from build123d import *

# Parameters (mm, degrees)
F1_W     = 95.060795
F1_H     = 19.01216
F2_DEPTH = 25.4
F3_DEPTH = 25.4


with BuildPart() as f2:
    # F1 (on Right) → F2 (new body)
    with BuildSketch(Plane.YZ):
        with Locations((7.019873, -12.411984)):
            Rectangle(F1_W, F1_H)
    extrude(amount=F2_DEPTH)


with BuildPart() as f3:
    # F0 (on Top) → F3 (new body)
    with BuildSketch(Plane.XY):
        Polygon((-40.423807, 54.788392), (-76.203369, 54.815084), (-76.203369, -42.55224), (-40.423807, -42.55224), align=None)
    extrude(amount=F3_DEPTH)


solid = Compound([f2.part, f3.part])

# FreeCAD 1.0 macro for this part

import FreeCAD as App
import Part
import Sketcher

V = App.Vector
Q = App.Units.Quantity

doc = App.newDocument("Part")
body = doc.addObject("PartDesign::Body", "Body")

sketch1 = body.newObject("Sketcher::SketchObject", "Sketch")
sketch1.AttachmentSupport = (doc.getObject("YZ_Plane"), [""])
sketch1.MapMode = "FlatFace"
sketch1.addGeometry(Part.LineSegment(V(-41, -3, 0), V(-41, -22, 0)), False)
sketch1.addGeometry(Part.LineSegment(V(-41, -22, 0), V(55, -22, 0)), False)
sketch1.addGeometry(Part.LineSegment(V(55, -22, 0), V(55, -3, 0)), False)
sketch1.addGeometry(Part.LineSegment(V(55, -3, 0), V(-41, -3, 0)), False)
sketch1.addConstraint(Sketcher.Constraint("Coincident", 0, 2, 1, 1))
sketch1.addConstraint(Sketcher.Constraint("Coincident", 1, 2, 2, 1))
sketch1.addConstraint(Sketcher.Constraint("Coincident", 2, 2, 3, 1))
sketch1.addConstraint(Sketcher.Constraint("Coincident", 3, 2, 0, 1))
sketch1.addConstraint(Sketcher.Constraint("Vertical", 0))
sketch1.addConstraint(Sketcher.Constraint("Horizontal", 1))
sketch1.addConstraint(Sketcher.Constraint("Vertical", 2))
sketch1.addConstraint(Sketcher.Constraint("Horizontal", 3))
sketch1.addConstraint(Sketcher.Constraint("DistanceY", 0, 2, 0, 1, 19.01216))
sketch1.addConstraint(Sketcher.Constraint("DistanceX", 1, 1, 1, 2, 95.060795))
sketch1.addConstraint(Sketcher.Constraint("DistanceX", -1, 1, 1, 2, 54.550271))
sketch1.addConstraint(Sketcher.Constraint("DistanceY", 0, 2, -1, 1, 21.918064))
pad1 = body.newObject("PartDesign::Pad", "Pad")
pad1.Profile = sketch1
pad1.Length = Q("1 in")
body2 = doc.addObject("PartDesign::Body", "Body001")

sketch2 = body2.newObject("Sketcher::SketchObject", "Sketch001")
sketch2.AttachmentSupport = (doc.getObject("XY_Plane001"), [""])
sketch2.MapMode = "FlatFace"
sketch2.addGeometry(Part.LineSegment(V(-40, 55, 0), V(-76, 55, 0)), False)
sketch2.addGeometry(Part.LineSegment(V(-76, 55, 0), V(-76, -43, 0)), False)
sketch2.addGeometry(Part.LineSegment(V(-76, -43, 0), V(-40, -43, 0)), False)
sketch2.addGeometry(Part.LineSegment(V(-40, -43, 0), V(-40, 55, 0)), False)
sketch2.addConstraint(Sketcher.Constraint("Coincident", 0, 2, 1, 1))
sketch2.addConstraint(Sketcher.Constraint("Coincident", 1, 2, 2, 1))
sketch2.addConstraint(Sketcher.Constraint("Coincident", 2, 2, 3, 1))
sketch2.addConstraint(Sketcher.Constraint("Coincident", 3, 2, 0, 1))
sketch2.addConstraint(Sketcher.Constraint("Vertical", 1))
sketch2.addConstraint(Sketcher.Constraint("Horizontal", 2))
sketch2.addConstraint(Sketcher.Constraint("Vertical", 3))
sketch2.addConstraint(Sketcher.Constraint("DistanceY", 3, 1, 3, 2, 97.340632))
sketch2.addConstraint(Sketcher.Constraint("Distance", 0, 35.779572))
sketch2.addConstraint(Sketcher.Constraint("DistanceY", 1, 2, 1, 1, 97.367324))
sketch2.addConstraint(Sketcher.Constraint("DistanceX", 0, 2, -1, 1, 76.203369))
sketch2.addConstraint(Sketcher.Constraint("DistanceY", 1, 2, -1, 1, 42.55224))
pad2 = body2.newObject("PartDesign::Pad", "Pad001")
pad2.Profile = sketch2
pad2.Length = Q("1 in")

doc.recompute()
